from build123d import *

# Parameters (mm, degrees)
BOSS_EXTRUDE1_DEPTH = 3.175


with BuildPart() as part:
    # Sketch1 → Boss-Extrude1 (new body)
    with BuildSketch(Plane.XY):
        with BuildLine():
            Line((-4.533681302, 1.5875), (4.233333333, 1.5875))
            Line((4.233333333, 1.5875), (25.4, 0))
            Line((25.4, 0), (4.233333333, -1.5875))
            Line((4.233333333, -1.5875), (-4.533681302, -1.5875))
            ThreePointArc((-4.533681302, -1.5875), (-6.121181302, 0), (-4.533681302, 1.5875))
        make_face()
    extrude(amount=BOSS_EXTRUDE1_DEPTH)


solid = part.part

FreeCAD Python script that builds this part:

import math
import FreeCAD as App
import Part
import Sketcher
from FreeCAD import Vector
Q = App.Units.Quantity

doc = App.newDocument("Part")
body = doc.addObject("PartDesign::Body", "Body")

# Sketch on XY plane
sketch1 = body.newObject("Sketcher::SketchObject", "Sketch")
sketch1.AttachmentSupport = (doc.getObject("XY_Plane"), [""])
sketch1.MapMode = "FlatFace"
sketch1.addGeometry([
    Part.LineSegment(Vector(4.233333, 1.5875, 0), Vector(-4.533681, 1.5875, 0)),  # 0
    Part.ArcOfCircle(Part.Circle(Vector(-4.533681, 0, 0), Vector(0, 0, 1), 1.5875), math.radians(90), math.radians(270)),  # 1
    Part.LineSegment(Vector(-4.533681, -1.5875, 0), Vector(4.233333, -1.5875, 0)),  # 2
    Part.LineSegment(Vector(4.233333, -1.5875, 0), Vector(25.4, 0, 0)),  # 3
    Part.LineSegment(Vector(25.4, 0, 0), Vector(4.233333, 1.5875, 0)),  # 4
], False)
sketch1.addConstraint([
    Sketcher.Constraint("Tangent", 0, 2, 1, 1),
    Sketcher.Constraint("Tangent", 1, 2, 2, 1),
    Sketcher.Constraint("Coincident", 2, 2, 3, 1),
    Sketcher.Constraint("Coincident", 3, 2, 4, 1),
    Sketcher.Constraint("Coincident", 4, 2, 0, 1),
    Sketcher.Constraint("Horizontal", 0),
    Sketcher.Constraint("Horizontal", 2),
    Sketcher.Constraint("Symmetric", 2, 2, 4, 2, -1),
    Sketcher.Constraint("PointOnObject", 3, 2, -1),
    Sketcher.Constraint("DistanceX", -1, 1, 3, 2, Q("1 in")),
    Sketcher.Constraint("Radius", 1, Q("0.0625 in")),
    Sketcher.Constraint("DistanceX", 0, 2, 0, 1, Q("8.767015 mm")),
    Sketcher.Constraint("DistanceX", 1, 3, -1, 1, Q("4.533681 mm")),
])
pad1 = body.newObject("PartDesign::Pad", "Pad")
pad1.Profile = sketch1
pad1.Length = Q("0.125 in")

doc.recompute()
